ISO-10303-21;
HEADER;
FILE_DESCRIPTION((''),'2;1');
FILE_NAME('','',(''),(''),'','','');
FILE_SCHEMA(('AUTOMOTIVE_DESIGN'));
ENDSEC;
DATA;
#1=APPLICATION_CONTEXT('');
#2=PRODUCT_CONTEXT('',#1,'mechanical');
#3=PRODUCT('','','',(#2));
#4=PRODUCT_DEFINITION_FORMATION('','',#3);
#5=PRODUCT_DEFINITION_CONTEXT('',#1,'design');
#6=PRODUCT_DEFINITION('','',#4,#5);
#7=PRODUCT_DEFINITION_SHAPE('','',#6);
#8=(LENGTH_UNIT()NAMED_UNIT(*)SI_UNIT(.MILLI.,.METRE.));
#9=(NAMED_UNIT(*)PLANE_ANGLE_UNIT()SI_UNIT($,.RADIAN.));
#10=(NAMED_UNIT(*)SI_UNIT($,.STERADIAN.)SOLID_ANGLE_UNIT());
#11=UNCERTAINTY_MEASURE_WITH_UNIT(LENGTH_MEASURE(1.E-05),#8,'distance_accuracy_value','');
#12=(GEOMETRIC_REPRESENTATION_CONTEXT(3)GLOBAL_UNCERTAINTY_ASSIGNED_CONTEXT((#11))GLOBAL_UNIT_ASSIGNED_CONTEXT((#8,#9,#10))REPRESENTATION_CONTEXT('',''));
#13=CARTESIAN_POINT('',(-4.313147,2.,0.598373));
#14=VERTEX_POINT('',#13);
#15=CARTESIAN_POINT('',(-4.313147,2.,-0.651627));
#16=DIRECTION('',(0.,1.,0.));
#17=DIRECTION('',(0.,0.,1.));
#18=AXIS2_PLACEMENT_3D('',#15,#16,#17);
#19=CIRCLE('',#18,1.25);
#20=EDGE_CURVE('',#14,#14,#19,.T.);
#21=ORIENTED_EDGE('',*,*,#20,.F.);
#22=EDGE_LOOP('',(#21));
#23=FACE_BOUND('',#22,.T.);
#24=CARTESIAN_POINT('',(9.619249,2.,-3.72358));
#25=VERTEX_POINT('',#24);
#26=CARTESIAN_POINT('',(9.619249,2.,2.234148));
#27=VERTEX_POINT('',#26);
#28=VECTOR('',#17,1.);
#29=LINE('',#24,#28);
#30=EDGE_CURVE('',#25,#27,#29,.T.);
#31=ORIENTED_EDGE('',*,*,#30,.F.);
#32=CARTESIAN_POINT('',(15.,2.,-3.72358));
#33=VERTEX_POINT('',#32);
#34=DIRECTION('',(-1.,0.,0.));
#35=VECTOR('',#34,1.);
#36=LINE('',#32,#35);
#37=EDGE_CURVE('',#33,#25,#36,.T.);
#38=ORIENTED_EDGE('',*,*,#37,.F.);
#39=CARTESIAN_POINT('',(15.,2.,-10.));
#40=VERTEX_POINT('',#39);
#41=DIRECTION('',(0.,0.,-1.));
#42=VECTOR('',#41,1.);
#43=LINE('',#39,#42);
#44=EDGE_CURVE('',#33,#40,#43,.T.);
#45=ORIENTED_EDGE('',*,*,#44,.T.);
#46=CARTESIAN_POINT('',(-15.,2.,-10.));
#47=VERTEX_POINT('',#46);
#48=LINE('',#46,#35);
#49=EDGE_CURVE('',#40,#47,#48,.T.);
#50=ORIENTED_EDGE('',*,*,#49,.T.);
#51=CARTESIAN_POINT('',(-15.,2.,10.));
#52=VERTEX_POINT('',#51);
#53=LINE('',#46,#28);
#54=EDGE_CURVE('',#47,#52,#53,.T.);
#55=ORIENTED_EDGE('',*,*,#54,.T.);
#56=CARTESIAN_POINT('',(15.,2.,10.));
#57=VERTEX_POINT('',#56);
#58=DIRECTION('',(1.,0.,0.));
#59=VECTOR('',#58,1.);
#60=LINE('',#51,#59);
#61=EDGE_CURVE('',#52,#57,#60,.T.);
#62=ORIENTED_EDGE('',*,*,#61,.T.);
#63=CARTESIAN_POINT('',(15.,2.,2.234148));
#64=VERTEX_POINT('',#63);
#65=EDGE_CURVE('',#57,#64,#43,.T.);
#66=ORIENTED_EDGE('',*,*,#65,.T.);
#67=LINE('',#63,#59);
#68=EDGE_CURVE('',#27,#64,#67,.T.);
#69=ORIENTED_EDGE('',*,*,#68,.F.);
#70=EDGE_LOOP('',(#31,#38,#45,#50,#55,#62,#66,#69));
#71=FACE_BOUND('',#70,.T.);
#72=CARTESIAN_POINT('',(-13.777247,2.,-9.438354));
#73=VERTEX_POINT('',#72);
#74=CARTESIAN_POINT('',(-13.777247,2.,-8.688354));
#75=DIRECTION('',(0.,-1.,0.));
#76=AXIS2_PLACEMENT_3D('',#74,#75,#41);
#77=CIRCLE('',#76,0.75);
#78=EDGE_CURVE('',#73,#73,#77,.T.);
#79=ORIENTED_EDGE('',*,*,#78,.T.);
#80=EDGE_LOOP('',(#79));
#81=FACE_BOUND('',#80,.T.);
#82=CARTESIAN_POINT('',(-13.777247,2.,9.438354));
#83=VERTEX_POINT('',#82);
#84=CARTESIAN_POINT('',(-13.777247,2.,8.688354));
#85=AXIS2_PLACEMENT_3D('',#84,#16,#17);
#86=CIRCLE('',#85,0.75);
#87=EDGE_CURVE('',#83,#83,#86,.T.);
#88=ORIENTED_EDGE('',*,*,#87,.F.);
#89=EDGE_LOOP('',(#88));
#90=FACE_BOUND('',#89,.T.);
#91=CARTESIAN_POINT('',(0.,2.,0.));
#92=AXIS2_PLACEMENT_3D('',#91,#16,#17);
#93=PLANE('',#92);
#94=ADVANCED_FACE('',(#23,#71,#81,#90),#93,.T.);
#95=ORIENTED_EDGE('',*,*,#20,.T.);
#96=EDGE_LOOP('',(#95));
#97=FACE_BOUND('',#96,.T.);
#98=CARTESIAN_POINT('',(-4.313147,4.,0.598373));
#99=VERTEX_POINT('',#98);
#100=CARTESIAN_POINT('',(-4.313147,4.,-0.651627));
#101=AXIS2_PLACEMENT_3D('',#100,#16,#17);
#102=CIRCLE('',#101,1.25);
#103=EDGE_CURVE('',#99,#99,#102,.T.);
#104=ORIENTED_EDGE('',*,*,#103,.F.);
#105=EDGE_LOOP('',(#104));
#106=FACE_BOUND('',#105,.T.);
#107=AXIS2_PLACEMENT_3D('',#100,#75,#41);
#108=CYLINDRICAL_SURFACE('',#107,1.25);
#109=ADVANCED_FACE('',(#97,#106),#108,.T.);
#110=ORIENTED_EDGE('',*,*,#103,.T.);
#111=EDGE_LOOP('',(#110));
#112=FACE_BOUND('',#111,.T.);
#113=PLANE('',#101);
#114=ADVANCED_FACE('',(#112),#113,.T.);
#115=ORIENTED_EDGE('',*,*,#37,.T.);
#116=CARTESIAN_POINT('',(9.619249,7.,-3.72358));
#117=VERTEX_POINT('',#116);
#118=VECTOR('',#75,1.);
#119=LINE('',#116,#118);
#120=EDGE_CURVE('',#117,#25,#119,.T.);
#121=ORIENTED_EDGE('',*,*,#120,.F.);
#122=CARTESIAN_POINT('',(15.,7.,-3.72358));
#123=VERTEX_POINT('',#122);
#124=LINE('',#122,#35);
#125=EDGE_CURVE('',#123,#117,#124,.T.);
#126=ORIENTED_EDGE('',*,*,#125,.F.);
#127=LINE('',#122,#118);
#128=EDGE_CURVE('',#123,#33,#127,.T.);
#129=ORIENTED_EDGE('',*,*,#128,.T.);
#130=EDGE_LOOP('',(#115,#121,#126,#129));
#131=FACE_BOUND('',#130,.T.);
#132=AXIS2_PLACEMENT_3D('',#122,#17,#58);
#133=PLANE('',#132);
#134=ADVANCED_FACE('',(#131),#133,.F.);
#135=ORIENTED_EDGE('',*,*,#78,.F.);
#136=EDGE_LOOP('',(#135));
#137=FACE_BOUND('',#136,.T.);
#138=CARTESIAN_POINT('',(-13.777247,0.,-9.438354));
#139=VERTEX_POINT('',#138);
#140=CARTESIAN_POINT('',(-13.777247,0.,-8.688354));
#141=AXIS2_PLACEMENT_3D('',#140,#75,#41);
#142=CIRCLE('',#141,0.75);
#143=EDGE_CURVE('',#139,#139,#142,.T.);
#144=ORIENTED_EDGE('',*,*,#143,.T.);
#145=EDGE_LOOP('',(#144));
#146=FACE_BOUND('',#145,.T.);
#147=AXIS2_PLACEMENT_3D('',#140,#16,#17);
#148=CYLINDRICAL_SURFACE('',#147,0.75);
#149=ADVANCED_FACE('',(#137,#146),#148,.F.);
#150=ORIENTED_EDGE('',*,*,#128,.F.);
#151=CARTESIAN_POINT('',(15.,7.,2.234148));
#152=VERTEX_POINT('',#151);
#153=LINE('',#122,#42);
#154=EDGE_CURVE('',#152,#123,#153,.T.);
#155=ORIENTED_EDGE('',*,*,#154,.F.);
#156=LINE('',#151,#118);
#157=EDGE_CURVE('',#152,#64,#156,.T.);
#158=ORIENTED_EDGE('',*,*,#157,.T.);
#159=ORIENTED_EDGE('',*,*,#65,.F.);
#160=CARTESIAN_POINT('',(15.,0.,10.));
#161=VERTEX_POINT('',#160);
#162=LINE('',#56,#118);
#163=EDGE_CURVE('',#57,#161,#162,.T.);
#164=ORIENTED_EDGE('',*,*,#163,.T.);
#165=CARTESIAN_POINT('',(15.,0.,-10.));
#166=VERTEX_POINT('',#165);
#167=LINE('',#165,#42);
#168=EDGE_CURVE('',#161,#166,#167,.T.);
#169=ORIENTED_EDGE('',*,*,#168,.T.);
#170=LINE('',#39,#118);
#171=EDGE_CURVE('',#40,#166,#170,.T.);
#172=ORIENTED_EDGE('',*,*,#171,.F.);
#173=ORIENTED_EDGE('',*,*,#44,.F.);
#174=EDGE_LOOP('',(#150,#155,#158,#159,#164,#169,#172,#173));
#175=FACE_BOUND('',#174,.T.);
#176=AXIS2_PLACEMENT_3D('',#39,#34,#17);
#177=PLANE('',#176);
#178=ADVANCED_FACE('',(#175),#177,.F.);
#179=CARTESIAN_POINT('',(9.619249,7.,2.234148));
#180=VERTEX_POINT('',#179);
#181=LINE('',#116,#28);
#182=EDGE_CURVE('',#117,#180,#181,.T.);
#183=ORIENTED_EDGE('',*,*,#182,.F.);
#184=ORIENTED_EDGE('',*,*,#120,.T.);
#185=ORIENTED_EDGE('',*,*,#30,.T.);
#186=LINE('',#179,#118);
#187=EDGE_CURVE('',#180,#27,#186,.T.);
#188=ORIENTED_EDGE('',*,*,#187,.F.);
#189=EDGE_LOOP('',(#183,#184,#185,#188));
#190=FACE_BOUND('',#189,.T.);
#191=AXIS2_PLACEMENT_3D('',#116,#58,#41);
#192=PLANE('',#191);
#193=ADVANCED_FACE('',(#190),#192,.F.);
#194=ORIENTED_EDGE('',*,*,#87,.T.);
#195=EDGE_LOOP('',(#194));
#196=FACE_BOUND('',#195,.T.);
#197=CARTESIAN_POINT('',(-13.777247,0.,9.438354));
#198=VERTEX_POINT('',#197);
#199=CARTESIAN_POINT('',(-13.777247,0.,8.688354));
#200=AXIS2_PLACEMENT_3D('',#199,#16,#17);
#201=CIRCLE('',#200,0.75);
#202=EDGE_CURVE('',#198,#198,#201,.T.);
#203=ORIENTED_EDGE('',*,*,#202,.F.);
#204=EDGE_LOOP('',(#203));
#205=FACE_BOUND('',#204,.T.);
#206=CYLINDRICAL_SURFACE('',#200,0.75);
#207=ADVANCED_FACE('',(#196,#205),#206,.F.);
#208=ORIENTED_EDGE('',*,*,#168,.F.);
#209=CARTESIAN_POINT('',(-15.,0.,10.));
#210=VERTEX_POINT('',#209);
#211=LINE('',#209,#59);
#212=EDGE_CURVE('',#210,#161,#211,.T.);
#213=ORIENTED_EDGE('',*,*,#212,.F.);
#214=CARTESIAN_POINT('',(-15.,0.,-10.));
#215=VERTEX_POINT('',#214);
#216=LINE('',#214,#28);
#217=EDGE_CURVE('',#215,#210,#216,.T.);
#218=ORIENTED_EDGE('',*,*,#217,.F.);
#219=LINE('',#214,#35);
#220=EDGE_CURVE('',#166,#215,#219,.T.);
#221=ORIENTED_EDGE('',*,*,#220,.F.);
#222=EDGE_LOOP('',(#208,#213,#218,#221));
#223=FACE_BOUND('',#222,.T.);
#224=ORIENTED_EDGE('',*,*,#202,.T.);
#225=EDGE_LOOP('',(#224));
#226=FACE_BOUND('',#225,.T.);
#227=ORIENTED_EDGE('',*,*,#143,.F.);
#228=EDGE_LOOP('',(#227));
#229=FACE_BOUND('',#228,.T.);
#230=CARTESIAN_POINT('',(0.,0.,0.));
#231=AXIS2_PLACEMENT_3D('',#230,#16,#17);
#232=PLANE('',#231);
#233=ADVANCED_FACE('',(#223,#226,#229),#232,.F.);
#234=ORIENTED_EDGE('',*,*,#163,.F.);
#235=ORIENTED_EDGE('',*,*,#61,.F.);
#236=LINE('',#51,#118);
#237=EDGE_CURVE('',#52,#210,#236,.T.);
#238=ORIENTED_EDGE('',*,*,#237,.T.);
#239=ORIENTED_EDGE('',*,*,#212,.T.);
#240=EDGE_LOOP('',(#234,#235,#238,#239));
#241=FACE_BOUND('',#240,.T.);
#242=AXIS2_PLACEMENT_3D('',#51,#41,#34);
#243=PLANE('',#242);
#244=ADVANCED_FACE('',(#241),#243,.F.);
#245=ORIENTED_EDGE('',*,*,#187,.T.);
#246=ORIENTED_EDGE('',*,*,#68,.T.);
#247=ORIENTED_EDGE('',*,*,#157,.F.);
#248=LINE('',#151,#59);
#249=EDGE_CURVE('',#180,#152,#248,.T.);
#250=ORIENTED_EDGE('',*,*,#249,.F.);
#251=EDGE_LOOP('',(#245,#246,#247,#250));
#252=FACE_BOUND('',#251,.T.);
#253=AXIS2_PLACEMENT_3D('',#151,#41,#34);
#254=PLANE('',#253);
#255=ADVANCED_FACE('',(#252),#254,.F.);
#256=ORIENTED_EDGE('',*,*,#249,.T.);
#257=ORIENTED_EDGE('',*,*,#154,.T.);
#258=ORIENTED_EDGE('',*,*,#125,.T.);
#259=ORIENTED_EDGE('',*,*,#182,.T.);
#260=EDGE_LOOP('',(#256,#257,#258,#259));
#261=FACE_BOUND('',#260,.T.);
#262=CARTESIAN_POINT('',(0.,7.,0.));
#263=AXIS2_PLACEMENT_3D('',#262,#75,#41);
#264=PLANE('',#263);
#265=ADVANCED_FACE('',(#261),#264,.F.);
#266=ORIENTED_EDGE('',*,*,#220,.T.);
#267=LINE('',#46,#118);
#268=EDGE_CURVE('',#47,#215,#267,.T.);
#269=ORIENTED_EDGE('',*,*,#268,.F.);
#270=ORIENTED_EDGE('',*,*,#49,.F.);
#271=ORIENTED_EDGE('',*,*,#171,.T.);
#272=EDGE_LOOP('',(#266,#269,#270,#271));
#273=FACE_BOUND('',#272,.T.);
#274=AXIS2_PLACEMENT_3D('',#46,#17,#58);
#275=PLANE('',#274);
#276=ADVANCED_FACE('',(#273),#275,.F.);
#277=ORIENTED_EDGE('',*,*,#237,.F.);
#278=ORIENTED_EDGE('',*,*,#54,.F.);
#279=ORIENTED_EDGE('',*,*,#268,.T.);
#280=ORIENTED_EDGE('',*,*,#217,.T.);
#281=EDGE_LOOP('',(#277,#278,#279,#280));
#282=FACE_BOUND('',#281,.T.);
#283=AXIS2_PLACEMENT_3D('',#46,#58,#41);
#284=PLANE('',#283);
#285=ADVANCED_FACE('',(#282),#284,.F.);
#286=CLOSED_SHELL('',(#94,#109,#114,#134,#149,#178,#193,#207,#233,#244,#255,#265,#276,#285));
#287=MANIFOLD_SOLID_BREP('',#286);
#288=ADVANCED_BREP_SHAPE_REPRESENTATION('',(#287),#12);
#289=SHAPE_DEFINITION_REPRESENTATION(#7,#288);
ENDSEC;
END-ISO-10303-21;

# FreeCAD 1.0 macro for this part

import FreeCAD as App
import Part
import Sketcher
from FreeCAD import Vector

doc = App.newDocument("Part")
body = doc.addObject("PartDesign::Body", "Body")

# Sketch on XZ plane
sketch1 = body.newObject("Sketcher::SketchObject", "Sketch")
sketch1.AttachmentSupport = (doc.getObject("XZ_Plane"), [""])
sketch1.MapMode = "FlatFace"
sketch1.addGeometry(Part.LineSegment(Vector(-15, -10, 0), Vector(-15, 10, 0)), False)
sketch1.addGeometry(Part.LineSegment(Vector(-15, 10, 0), Vector(15, 10, 0)), False)
sketch1.addGeometry(Part.LineSegment(Vector(15, 10, 0), Vector(15, -10, 0)), False)
sketch1.addGeometry(Part.LineSegment(Vector(15, -10, 0), Vector(-15, -10, 0)), False)
sketch1.addConstraint(Sketcher.Constraint("Coincident", 0, 2, 1, 1))
sketch1.addConstraint(Sketcher.Constraint("Coincident", 1, 2, 2, 1))
sketch1.addConstraint(Sketcher.Constraint("Coincident", 2, 2, 3, 1))
sketch1.addConstraint(Sketcher.Constraint("Coincident", 3, 2, 0, 1))
sketch1.addConstraint(Sketcher.Constraint("Vertical", 0))
sketch1.addConstraint(Sketcher.Constraint("Horizontal", 1))
sketch1.addConstraint(Sketcher.Constraint("Vertical", 2))
sketch1.addConstraint(Sketcher.Constraint("Horizontal", 3))
sketch1.addConstraint(Sketcher.Constraint("Symmetric", 0, 2, 2, 2, -1, 1))
sketch1.addConstraint(Sketcher.Constraint("DistanceX", 1, 1, 1, 2, 30.0))
sketch1.addConstraint(Sketcher.Constraint("DistanceY", 0, 1, 0, 2, 20.0))
pad1 = body.newObject("PartDesign::Pad", "Pad")
pad1.Profile = sketch1
pad1.Length = 2
pad1.Reversed = True

# Sketch on XZ plane
sketch2 = body.newObject("Sketcher::SketchObject", "Sketch001")
sketch2.AttachmentSupport = (doc.getObject("XZ_Plane"), [""])
sketch2.MapMode = "FlatFace"
sketch2.AttachmentOffset = App.Placement(Vector(0, 0, -2), App.Rotation())
sketch2.addGeometry(Part.Circle(Vector(-13.8, 8.7, 0), Vector(0, 0, 1), 0.8), False)
sketch2.addConstraint(Sketcher.Constraint("Diameter", 0, 1.5))
sketch2.addConstraint(Sketcher.Constraint("DistanceX", 0, 3, -1, 1, 13.777247))
sketch2.addConstraint(Sketcher.Constraint("DistanceY", -1, 1, 0, 3, 8.688354))
pocket1 = body.newObject("PartDesign::Pocket", "Pocket")
pocket1.Profile = sketch2
pocket1.Length = 2
pocket1.Reversed = True
doc.recompute()

mirrored = body.newObject("PartDesign::Mirrored", "Mirrored")
mirrored.Originals = [pocket1]
mirrored.MirrorPlane = (doc.getObject("XY_Plane"), [""])
body.Tip = mirrored

# Sketch on XZ plane
sketch3 = body.newObject("Sketcher::SketchObject", "Sketch002")
sketch3.AttachmentSupport = (doc.getObject("XZ_Plane"), [""])
sketch3.MapMode = "FlatFace"
sketch3.AttachmentOffset = App.Placement(Vector(0, 0, -2), App.Rotation())
sketch3.addGeometry(Part.Circle(Vector(-4.3, -0.7, 0), Vector(0, 0, 1), 1.2), False)
sketch3.addConstraint(Sketcher.Constraint("Diameter", 0, 2.5))
sketch3.addConstraint(Sketcher.Constraint("DistanceX", 0, 3, -1, 1, 4.313147))
sketch3.addConstraint(Sketcher.Constraint("DistanceY", 0, 3, -1, 1, 0.651627))
pad2 = body.newObject("PartDesign::Pad", "Pad001")
pad2.Profile = sketch3
pad2.Length = 2
pad2.Reversed = True

# Sketch on XZ plane
sketch4 = body.newObject("Sketcher::SketchObject", "Sketch003")
sketch4.AttachmentSupport = (doc.getObject("XZ_Plane"), [""])
sketch4.MapMode = "FlatFace"
sketch4.AttachmentOffset = App.Placement(Vector(0, 0, -2), App.Rotation())
sketch4.addGeometry(Part.LineSegment(Vector(10, -4, 0), Vector(10, 2, 0)), False)
sketch4.addGeometry(Part.LineSegment(Vector(10, 2, 0), Vector(15, 2, 0)), False)
sketch4.addGeometry(Part.LineSegment(Vector(15, 2, 0), Vector(15, -4, 0)), False)
sketch4.addGeometry(Part.LineSegment(Vector(15, -4, 0), Vector(10, -4, 0)), False)
sketch4.addConstraint(Sketcher.Constraint("Coincident", 0, 2, 1, 1))
sketch4.addConstraint(Sketcher.Constraint("Coincident", 1, 2, 2, 1))
sketch4.addConstraint(Sketcher.Constraint("Coincident", 2, 2, 3, 1))
sketch4.addConstraint(Sketcher.Constraint("Coincident", 3, 2, 0, 1))
sketch4.addConstraint(Sketcher.Constraint("Vertical", 0))
sketch4.addConstraint(Sketcher.Constraint("Horizontal", 1))
sketch4.addConstraint(Sketcher.Constraint("Vertical", 2))
sketch4.addConstraint(Sketcher.Constraint("Horizontal", 3))
sketch4.addConstraint(Sketcher.Constraint("DistanceX", -1, 1, 1, 2, 15.0))
sketch4.addConstraint(Sketcher.Constraint("DistanceX", 1, 1, 1, 2, 5.380751))
sketch4.addConstraint(Sketcher.Constraint("DistanceY", 0, 1, 0, 2, 5.957728))
sketch4.addConstraint(Sketcher.Constraint("DistanceY", -1, 1, 0, 2, 2.234148))
pad3 = body.newObject("PartDesign::Pad", "Pad002")
pad3.Profile = sketch4
pad3.Length = 5
pad3.Reversed = True

doc.recompute()
